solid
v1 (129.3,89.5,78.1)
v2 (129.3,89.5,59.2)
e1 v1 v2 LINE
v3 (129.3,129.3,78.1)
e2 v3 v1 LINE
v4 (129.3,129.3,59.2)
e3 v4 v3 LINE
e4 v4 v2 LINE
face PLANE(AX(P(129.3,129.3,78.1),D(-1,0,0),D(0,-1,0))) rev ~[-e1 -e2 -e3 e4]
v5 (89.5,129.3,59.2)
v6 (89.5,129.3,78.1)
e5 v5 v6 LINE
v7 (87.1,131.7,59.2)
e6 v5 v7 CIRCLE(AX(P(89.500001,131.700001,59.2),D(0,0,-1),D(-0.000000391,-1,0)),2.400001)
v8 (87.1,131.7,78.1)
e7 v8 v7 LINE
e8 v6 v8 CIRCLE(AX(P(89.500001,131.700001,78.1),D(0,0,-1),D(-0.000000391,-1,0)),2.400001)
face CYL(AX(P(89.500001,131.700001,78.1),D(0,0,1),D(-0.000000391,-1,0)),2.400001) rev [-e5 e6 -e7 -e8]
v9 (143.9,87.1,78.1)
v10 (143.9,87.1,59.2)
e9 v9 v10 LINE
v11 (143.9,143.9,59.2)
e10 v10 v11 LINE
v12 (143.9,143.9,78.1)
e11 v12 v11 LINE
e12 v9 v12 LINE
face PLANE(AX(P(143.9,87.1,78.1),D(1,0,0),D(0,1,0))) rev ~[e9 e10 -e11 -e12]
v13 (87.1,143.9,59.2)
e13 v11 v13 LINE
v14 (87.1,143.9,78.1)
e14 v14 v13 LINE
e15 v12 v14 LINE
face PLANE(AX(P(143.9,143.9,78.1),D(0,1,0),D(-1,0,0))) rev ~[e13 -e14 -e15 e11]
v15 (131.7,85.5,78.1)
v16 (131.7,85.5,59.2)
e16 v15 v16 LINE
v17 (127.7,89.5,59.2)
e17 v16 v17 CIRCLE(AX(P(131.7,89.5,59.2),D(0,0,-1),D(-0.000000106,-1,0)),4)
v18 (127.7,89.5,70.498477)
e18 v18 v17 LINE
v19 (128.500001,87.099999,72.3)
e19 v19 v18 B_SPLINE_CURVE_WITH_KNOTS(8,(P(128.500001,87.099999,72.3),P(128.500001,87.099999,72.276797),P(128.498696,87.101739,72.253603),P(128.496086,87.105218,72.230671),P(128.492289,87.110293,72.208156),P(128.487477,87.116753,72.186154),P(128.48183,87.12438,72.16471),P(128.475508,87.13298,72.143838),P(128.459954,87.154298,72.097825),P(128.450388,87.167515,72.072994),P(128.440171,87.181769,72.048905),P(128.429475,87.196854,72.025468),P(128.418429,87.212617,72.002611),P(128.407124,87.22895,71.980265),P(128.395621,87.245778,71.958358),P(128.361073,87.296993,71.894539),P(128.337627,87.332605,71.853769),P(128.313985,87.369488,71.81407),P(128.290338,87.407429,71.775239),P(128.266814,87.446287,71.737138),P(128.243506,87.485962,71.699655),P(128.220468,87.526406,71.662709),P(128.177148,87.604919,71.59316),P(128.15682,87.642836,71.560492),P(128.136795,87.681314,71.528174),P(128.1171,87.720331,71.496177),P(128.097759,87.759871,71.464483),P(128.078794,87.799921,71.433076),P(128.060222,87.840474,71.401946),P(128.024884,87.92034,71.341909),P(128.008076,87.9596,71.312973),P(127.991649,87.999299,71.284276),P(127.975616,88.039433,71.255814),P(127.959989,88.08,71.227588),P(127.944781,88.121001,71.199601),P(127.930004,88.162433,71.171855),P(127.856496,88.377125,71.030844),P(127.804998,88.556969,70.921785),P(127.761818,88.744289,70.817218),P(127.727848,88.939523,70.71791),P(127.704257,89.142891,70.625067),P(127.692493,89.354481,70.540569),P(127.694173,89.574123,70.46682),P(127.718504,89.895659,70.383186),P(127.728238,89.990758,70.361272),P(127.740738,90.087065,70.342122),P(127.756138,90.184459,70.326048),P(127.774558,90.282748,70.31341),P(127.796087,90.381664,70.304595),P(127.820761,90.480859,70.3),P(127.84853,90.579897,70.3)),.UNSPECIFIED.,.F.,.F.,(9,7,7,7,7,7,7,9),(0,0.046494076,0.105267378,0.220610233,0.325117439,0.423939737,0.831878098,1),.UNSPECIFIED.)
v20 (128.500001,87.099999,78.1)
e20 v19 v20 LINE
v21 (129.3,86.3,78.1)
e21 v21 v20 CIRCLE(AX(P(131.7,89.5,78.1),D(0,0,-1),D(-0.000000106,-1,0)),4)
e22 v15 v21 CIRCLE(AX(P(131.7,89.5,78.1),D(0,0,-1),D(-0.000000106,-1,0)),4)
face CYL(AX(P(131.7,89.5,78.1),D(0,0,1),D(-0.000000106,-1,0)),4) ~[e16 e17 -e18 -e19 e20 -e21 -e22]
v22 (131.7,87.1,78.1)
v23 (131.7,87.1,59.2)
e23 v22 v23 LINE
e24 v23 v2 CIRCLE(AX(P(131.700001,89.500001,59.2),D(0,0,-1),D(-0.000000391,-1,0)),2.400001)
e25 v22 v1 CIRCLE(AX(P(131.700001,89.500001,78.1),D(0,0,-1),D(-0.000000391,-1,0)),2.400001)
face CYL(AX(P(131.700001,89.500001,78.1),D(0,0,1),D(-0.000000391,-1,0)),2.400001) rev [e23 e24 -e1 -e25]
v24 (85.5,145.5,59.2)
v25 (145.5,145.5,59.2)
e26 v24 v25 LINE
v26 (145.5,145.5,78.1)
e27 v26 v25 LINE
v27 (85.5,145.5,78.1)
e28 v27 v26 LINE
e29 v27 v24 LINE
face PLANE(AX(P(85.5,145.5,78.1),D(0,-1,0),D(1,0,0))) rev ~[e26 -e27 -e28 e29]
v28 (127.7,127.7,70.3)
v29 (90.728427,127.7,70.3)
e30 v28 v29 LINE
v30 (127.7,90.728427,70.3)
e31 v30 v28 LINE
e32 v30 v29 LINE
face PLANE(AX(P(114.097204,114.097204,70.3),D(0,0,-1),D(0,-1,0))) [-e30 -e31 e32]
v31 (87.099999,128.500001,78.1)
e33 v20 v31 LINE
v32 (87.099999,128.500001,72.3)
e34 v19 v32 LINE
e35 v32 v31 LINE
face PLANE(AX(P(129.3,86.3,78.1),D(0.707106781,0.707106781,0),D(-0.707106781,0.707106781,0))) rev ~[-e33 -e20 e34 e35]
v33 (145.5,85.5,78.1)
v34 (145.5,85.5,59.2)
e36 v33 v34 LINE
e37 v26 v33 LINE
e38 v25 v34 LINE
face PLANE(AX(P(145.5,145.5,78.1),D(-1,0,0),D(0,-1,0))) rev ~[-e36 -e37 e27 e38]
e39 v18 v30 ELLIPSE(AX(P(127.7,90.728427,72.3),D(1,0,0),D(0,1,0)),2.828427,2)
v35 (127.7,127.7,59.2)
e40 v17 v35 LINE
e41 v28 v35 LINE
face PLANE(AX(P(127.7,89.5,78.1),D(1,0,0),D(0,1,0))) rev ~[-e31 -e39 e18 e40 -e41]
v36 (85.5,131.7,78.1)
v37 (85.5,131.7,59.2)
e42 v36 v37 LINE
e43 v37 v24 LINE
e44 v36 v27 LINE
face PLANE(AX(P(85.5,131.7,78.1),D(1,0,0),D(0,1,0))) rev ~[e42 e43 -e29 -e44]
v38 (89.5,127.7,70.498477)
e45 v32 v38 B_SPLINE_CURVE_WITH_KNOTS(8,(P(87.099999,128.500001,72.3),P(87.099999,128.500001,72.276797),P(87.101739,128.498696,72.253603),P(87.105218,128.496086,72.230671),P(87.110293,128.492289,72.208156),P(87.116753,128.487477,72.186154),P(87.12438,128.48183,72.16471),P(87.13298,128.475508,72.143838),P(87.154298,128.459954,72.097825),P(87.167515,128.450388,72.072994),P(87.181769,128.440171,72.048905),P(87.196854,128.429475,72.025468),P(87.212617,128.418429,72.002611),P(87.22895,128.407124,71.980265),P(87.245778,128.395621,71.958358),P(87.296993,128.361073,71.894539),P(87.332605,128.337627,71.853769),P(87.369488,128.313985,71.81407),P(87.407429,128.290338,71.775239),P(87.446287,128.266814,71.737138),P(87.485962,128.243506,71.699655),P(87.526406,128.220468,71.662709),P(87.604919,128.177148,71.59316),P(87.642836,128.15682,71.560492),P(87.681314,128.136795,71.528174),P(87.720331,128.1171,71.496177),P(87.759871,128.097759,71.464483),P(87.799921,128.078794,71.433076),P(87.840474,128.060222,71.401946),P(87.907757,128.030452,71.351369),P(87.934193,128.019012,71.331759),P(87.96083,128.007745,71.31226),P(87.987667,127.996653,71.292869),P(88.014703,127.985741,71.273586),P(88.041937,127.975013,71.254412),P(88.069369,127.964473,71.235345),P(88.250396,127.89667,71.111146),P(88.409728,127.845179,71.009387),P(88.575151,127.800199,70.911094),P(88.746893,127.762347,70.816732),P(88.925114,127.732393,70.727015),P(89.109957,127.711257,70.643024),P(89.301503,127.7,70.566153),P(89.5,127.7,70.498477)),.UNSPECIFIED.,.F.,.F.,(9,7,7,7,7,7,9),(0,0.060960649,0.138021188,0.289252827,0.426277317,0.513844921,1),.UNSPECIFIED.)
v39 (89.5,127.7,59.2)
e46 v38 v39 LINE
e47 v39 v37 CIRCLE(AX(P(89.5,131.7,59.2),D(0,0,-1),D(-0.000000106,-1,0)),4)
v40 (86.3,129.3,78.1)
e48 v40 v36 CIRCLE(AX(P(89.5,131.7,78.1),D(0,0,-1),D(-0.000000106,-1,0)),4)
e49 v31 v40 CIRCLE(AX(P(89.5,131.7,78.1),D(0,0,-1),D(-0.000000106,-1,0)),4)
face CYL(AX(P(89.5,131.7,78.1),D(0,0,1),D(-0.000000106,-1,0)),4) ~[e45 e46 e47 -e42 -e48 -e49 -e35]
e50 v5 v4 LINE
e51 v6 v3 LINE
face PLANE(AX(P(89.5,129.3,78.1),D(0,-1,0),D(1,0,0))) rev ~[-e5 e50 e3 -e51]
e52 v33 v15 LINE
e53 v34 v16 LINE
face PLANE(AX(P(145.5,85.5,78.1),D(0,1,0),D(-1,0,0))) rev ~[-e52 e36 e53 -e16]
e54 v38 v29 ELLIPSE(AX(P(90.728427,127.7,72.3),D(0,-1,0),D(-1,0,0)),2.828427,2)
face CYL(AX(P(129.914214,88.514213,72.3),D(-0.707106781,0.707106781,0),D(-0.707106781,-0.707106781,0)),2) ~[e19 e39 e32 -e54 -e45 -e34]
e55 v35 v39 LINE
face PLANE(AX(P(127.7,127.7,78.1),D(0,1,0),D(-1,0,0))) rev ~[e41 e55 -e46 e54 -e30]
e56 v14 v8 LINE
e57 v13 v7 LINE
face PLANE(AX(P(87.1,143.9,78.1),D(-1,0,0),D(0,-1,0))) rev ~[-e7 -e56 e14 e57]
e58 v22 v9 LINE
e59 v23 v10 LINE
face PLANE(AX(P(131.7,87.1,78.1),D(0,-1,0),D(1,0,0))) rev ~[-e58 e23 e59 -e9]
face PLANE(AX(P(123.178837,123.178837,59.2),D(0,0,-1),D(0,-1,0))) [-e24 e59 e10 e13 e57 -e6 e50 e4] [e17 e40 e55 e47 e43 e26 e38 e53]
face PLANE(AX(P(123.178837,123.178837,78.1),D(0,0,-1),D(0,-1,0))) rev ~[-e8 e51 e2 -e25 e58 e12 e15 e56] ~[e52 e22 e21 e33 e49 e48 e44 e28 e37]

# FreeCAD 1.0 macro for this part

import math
import FreeCAD as App
import Part
import Sketcher
Q = App.Units.Quantity


def edges_at(feature, points):
    """Names of the edges that pass closest to the given points."""
    edges = feature.Shape.Edges
    near = lambda p: min(range(len(edges)), key=lambda i: edges[i].distToShape(Part.Vertex(*p))[0])
    return sorted({f"Edge{near(p) + 1}" for p in points})


def add_polygon(sketch, points):
    """Adds a closed chain of lines whose ends are joined by coincident constraints."""
    first, n = sketch.GeometryCount, len(points)
    for a, b in zip(points, points[1:] + points[:1]):
        sketch.addGeometry(Part.LineSegment(App.Vector(*a, 0), App.Vector(*b, 0)), False)
    for i in range(n):
        sketch.addConstraint(Sketcher.Constraint("Coincident", first + i, 2, first + (i + 1) % n, 1))

doc = App.newDocument("Part")
params = doc.addObject("Spreadsheet::Sheet", "Params")
for row, (alias, value) in enumerate([
    ("sketch1_radius", "4 mm"),
    ("sketch1_radius2", "2.400001 mm"),
    ("sketch1_width", "60 mm"),
    ("sketch1_width2", "38.2 mm"),
    ("pad1_length", "18.9 mm"),
    ("sketch2_width", "43 mm"),
    ("pad2_length", "7.8 mm"),
    ("fillet_radius", "2 mm"),
], start=1):
    params.set(f"A{row}", alias)
    params.set(f"B{row}", "=" + value)
    params.setAlias(f"B{row}", alias)

body = doc.addObject("PartDesign::Body", "Body")

# Sketch on XY plane
sketch1 = doc.addObject("Sketcher::SketchObject", "Sketch")
body.addObject(sketch1)
sketch1.AttachmentSupport = (doc.XY_Plane, [""])
sketch1.MapMode = "FlatFace"
sketch1.addGeometry([
    Part.LineSegment(App.Vector(-30, 30, 0), App.Vector(-30, -30, 0)),  # 0
    Part.LineSegment(App.Vector(-30, -30, 0), App.Vector(30, -30, 0)),  # 1
    Part.LineSegment(App.Vector(30, -30, 0), App.Vector(30, -16.2, 0)),  # 2
    Part.ArcOfCircle(Part.Circle(App.Vector(26, -16.2, 0), App.Vector(0, 0, 1), 4), math.radians(0), math.radians(90)),  # 3
    Part.LineSegment(App.Vector(26, -12.2, 0), App.Vector(-12.2, -12.2, 0)),  # 4
    Part.LineSegment(App.Vector(-12.2, -12.2, 0), App.Vector(-12.2, 26, 0)),  # 5
    Part.ArcOfCircle(Part.Circle(App.Vector(-16.2, 26, 0), App.Vector(0, 0, 1), 4), math.radians(0), math.radians(90)),  # 6
    Part.LineSegment(App.Vector(-16.2, 30, 0), App.Vector(-30, 30, 0)),  # 7
    Part.LineSegment(App.Vector(-28.4, -28.4, 0), App.Vector(-28.4, 28.4, 0)),  # 8
    Part.LineSegment(App.Vector(-28.4, 28.4, 0), App.Vector(-16.2, 28.4, 0)),  # 9
    Part.ArcOfCircle(Part.Circle(App.Vector(-16.2, 26, 0), App.Vector(0, 0, 1), 2.4), math.radians(0), math.radians(90)),  # 10
    Part.LineSegment(App.Vector(-13.8, 26, 0), App.Vector(-13.8, -13.8, 0)),  # 11
    Part.LineSegment(App.Vector(-13.8, -13.8, 0), App.Vector(26, -13.8, 0)),  # 12
    Part.ArcOfCircle(Part.Circle(App.Vector(26, -16.2, 0), App.Vector(0, 0, 1), 2.4), math.radians(0), math.radians(90)),  # 13
    Part.LineSegment(App.Vector(28.4, -16.2, 0), App.Vector(28.4, -28.4, 0)),  # 14
    Part.LineSegment(App.Vector(28.4, -28.4, 0), App.Vector(-28.4, -28.4, 0)),  # 15
], False)
sketch1.addConstraint([
    Sketcher.Constraint("Coincident", 0, 2, 1, 1),
    Sketcher.Constraint("Coincident", 1, 2, 2, 1),
    Sketcher.Constraint("Tangent", 2, 2, 3, 1),
    Sketcher.Constraint("Tangent", 3, 2, 4, 1),
    Sketcher.Constraint("Coincident", 4, 2, 5, 1),
    Sketcher.Constraint("Tangent", 5, 2, 6, 1),
    Sketcher.Constraint("Tangent", 6, 2, 7, 1),
    Sketcher.Constraint("Coincident", 7, 2, 0, 1),
    Sketcher.Constraint("Coincident", 8, 2, 9, 1),
    Sketcher.Constraint("Tangent", 9, 2, 10, 2),
    Sketcher.Constraint("Tangent", 10, 1, 11, 1),
    Sketcher.Constraint("Coincident", 11, 2, 12, 1),
    Sketcher.Constraint("Tangent", 12, 2, 13, 2),
    Sketcher.Constraint("Tangent", 13, 1, 14, 1),
    Sketcher.Constraint("Coincident", 14, 2, 15, 1),
    Sketcher.Constraint("Coincident", 15, 2, 8, 1),
    Sketcher.Constraint("Vertical", 0),
    Sketcher.Constraint("Horizontal", 1),
    Sketcher.Constraint("Vertical", 2),
    Sketcher.Constraint("Horizontal", 4),
    Sketcher.Constraint("Vertical", 5),
    Sketcher.Constraint("Horizontal", 7),
    Sketcher.Constraint("Vertical", 8),
    Sketcher.Constraint("Horizontal", 9),
    Sketcher.Constraint("Vertical", 11),
    Sketcher.Constraint("Horizontal", 12),
    Sketcher.Constraint("Vertical", 14),
    Sketcher.Constraint("Horizontal", 15),
    Sketcher.Constraint("Coincident", 10, 3, 6, 3),
    Sketcher.Constraint("Coincident", 13, 3, 3, 3),
    Sketcher.Constraint("Equal", 3, 6),
    Sketcher.Constraint("Equal", 10, 13),
    Sketcher.Constraint("Symmetric", 1, 2, 7, 2, -1, 1),
    Sketcher.Constraint("Symmetric", 8, 2, 14, 2, -1, 1),
    Sketcher.Constraint("Equal", 1, 0),
    Sketcher.Constraint("Equal", 7, 2),
    Sketcher.Constraint("Radius", 3, Q("4 mm")),
    Sketcher.Constraint("Radius", 10, Q("2.400001 mm")),
    Sketcher.Constraint("DistanceX", 1, 1, 1, 2, Q("60 mm")),
    Sketcher.Constraint("DistanceX", 4, 2, 4, 1, Q("38.2 mm")),
])
sketch1.setExpression("Constraints[36]", "Params.sketch1_radius")
sketch1.setExpression("Constraints[37]", "Params.sketch1_radius2")
sketch1.setExpression("Constraints[38]", "Params.sketch1_width")
sketch1.setExpression("Constraints[39]", "Params.sketch1_width2")
pad1 = doc.addObject("PartDesign::Pad", "Pad")
body.addObject(pad1)
pad1.Profile = sketch1
pad1.setExpression("Length", "Params.pad1_length")

# Sketch on XY plane
sketch2 = doc.addObject("Sketcher::SketchObject", "Sketch001")
body.addObject(sketch2)
sketch2.AttachmentSupport = (doc.XY_Plane, [""])
sketch2.MapMode = "FlatFace"
add_polygon(sketch2, [(-14, 29), (-14, -14), (29, -14)])  # lines 0-2
sketch2.addConstraint([
    Sketcher.Constraint("Vertical", 0),
    Sketcher.Constraint("Horizontal", 1),
    Sketcher.Constraint("Equal", 1, 0),
    Sketcher.Constraint("DistanceX", 1, 1, 1, 2, Q("43 mm")),
    Sketcher.Constraint("DistanceX", 0, 2, -1, 1, Q("13.8 mm")),
    Sketcher.Constraint("DistanceY", 0, 2, -1, 1, Q("13.8 mm")),
])
sketch2.setExpression("Constraints[6]", "Params.sketch2_width")
pad2 = doc.addObject("PartDesign::Pad", "Pad001")
body.addObject(pad2)
pad2.Profile = sketch2
pad2.setExpression("Length", "Params.pad2_length")
doc.recompute()

fillet = doc.addObject("PartDesign::Fillet", "Fillet")
body.addObject(fillet)
fillet.Base = (pad2, edges_at(pad2, [(7.7, 7.7, 7.8)]))
fillet.setExpression("Radius", "Params.fillet_radius")
body2 = doc.addObject("PartDesign::Body", "Body001")
doc.recompute()

body.Placement = App.Placement(App.Vector(0, 0, 0), App.Rotation(App.Vector(1, 0, 0), 180))
boolean = doc.addObject("PartDesign::Boolean", "Boolean")
body2.addObject(boolean)
boolean.Type = "Fuse"
boolean.addObjects([body])
body3 = doc.addObject("PartDesign::Body", "Body002")
doc.recompute()

body2.Placement = App.Placement(App.Vector(115.5, 115.5, 78.1), App.Rotation(App.Vector(0, 0, 1), 270))
boolean2 = doc.addObject("PartDesign::Boolean", "Boolean001")
body3.addObject(boolean2)
boolean2.Type = "Fuse"
boolean2.addObjects([body2])

doc.recompute()
